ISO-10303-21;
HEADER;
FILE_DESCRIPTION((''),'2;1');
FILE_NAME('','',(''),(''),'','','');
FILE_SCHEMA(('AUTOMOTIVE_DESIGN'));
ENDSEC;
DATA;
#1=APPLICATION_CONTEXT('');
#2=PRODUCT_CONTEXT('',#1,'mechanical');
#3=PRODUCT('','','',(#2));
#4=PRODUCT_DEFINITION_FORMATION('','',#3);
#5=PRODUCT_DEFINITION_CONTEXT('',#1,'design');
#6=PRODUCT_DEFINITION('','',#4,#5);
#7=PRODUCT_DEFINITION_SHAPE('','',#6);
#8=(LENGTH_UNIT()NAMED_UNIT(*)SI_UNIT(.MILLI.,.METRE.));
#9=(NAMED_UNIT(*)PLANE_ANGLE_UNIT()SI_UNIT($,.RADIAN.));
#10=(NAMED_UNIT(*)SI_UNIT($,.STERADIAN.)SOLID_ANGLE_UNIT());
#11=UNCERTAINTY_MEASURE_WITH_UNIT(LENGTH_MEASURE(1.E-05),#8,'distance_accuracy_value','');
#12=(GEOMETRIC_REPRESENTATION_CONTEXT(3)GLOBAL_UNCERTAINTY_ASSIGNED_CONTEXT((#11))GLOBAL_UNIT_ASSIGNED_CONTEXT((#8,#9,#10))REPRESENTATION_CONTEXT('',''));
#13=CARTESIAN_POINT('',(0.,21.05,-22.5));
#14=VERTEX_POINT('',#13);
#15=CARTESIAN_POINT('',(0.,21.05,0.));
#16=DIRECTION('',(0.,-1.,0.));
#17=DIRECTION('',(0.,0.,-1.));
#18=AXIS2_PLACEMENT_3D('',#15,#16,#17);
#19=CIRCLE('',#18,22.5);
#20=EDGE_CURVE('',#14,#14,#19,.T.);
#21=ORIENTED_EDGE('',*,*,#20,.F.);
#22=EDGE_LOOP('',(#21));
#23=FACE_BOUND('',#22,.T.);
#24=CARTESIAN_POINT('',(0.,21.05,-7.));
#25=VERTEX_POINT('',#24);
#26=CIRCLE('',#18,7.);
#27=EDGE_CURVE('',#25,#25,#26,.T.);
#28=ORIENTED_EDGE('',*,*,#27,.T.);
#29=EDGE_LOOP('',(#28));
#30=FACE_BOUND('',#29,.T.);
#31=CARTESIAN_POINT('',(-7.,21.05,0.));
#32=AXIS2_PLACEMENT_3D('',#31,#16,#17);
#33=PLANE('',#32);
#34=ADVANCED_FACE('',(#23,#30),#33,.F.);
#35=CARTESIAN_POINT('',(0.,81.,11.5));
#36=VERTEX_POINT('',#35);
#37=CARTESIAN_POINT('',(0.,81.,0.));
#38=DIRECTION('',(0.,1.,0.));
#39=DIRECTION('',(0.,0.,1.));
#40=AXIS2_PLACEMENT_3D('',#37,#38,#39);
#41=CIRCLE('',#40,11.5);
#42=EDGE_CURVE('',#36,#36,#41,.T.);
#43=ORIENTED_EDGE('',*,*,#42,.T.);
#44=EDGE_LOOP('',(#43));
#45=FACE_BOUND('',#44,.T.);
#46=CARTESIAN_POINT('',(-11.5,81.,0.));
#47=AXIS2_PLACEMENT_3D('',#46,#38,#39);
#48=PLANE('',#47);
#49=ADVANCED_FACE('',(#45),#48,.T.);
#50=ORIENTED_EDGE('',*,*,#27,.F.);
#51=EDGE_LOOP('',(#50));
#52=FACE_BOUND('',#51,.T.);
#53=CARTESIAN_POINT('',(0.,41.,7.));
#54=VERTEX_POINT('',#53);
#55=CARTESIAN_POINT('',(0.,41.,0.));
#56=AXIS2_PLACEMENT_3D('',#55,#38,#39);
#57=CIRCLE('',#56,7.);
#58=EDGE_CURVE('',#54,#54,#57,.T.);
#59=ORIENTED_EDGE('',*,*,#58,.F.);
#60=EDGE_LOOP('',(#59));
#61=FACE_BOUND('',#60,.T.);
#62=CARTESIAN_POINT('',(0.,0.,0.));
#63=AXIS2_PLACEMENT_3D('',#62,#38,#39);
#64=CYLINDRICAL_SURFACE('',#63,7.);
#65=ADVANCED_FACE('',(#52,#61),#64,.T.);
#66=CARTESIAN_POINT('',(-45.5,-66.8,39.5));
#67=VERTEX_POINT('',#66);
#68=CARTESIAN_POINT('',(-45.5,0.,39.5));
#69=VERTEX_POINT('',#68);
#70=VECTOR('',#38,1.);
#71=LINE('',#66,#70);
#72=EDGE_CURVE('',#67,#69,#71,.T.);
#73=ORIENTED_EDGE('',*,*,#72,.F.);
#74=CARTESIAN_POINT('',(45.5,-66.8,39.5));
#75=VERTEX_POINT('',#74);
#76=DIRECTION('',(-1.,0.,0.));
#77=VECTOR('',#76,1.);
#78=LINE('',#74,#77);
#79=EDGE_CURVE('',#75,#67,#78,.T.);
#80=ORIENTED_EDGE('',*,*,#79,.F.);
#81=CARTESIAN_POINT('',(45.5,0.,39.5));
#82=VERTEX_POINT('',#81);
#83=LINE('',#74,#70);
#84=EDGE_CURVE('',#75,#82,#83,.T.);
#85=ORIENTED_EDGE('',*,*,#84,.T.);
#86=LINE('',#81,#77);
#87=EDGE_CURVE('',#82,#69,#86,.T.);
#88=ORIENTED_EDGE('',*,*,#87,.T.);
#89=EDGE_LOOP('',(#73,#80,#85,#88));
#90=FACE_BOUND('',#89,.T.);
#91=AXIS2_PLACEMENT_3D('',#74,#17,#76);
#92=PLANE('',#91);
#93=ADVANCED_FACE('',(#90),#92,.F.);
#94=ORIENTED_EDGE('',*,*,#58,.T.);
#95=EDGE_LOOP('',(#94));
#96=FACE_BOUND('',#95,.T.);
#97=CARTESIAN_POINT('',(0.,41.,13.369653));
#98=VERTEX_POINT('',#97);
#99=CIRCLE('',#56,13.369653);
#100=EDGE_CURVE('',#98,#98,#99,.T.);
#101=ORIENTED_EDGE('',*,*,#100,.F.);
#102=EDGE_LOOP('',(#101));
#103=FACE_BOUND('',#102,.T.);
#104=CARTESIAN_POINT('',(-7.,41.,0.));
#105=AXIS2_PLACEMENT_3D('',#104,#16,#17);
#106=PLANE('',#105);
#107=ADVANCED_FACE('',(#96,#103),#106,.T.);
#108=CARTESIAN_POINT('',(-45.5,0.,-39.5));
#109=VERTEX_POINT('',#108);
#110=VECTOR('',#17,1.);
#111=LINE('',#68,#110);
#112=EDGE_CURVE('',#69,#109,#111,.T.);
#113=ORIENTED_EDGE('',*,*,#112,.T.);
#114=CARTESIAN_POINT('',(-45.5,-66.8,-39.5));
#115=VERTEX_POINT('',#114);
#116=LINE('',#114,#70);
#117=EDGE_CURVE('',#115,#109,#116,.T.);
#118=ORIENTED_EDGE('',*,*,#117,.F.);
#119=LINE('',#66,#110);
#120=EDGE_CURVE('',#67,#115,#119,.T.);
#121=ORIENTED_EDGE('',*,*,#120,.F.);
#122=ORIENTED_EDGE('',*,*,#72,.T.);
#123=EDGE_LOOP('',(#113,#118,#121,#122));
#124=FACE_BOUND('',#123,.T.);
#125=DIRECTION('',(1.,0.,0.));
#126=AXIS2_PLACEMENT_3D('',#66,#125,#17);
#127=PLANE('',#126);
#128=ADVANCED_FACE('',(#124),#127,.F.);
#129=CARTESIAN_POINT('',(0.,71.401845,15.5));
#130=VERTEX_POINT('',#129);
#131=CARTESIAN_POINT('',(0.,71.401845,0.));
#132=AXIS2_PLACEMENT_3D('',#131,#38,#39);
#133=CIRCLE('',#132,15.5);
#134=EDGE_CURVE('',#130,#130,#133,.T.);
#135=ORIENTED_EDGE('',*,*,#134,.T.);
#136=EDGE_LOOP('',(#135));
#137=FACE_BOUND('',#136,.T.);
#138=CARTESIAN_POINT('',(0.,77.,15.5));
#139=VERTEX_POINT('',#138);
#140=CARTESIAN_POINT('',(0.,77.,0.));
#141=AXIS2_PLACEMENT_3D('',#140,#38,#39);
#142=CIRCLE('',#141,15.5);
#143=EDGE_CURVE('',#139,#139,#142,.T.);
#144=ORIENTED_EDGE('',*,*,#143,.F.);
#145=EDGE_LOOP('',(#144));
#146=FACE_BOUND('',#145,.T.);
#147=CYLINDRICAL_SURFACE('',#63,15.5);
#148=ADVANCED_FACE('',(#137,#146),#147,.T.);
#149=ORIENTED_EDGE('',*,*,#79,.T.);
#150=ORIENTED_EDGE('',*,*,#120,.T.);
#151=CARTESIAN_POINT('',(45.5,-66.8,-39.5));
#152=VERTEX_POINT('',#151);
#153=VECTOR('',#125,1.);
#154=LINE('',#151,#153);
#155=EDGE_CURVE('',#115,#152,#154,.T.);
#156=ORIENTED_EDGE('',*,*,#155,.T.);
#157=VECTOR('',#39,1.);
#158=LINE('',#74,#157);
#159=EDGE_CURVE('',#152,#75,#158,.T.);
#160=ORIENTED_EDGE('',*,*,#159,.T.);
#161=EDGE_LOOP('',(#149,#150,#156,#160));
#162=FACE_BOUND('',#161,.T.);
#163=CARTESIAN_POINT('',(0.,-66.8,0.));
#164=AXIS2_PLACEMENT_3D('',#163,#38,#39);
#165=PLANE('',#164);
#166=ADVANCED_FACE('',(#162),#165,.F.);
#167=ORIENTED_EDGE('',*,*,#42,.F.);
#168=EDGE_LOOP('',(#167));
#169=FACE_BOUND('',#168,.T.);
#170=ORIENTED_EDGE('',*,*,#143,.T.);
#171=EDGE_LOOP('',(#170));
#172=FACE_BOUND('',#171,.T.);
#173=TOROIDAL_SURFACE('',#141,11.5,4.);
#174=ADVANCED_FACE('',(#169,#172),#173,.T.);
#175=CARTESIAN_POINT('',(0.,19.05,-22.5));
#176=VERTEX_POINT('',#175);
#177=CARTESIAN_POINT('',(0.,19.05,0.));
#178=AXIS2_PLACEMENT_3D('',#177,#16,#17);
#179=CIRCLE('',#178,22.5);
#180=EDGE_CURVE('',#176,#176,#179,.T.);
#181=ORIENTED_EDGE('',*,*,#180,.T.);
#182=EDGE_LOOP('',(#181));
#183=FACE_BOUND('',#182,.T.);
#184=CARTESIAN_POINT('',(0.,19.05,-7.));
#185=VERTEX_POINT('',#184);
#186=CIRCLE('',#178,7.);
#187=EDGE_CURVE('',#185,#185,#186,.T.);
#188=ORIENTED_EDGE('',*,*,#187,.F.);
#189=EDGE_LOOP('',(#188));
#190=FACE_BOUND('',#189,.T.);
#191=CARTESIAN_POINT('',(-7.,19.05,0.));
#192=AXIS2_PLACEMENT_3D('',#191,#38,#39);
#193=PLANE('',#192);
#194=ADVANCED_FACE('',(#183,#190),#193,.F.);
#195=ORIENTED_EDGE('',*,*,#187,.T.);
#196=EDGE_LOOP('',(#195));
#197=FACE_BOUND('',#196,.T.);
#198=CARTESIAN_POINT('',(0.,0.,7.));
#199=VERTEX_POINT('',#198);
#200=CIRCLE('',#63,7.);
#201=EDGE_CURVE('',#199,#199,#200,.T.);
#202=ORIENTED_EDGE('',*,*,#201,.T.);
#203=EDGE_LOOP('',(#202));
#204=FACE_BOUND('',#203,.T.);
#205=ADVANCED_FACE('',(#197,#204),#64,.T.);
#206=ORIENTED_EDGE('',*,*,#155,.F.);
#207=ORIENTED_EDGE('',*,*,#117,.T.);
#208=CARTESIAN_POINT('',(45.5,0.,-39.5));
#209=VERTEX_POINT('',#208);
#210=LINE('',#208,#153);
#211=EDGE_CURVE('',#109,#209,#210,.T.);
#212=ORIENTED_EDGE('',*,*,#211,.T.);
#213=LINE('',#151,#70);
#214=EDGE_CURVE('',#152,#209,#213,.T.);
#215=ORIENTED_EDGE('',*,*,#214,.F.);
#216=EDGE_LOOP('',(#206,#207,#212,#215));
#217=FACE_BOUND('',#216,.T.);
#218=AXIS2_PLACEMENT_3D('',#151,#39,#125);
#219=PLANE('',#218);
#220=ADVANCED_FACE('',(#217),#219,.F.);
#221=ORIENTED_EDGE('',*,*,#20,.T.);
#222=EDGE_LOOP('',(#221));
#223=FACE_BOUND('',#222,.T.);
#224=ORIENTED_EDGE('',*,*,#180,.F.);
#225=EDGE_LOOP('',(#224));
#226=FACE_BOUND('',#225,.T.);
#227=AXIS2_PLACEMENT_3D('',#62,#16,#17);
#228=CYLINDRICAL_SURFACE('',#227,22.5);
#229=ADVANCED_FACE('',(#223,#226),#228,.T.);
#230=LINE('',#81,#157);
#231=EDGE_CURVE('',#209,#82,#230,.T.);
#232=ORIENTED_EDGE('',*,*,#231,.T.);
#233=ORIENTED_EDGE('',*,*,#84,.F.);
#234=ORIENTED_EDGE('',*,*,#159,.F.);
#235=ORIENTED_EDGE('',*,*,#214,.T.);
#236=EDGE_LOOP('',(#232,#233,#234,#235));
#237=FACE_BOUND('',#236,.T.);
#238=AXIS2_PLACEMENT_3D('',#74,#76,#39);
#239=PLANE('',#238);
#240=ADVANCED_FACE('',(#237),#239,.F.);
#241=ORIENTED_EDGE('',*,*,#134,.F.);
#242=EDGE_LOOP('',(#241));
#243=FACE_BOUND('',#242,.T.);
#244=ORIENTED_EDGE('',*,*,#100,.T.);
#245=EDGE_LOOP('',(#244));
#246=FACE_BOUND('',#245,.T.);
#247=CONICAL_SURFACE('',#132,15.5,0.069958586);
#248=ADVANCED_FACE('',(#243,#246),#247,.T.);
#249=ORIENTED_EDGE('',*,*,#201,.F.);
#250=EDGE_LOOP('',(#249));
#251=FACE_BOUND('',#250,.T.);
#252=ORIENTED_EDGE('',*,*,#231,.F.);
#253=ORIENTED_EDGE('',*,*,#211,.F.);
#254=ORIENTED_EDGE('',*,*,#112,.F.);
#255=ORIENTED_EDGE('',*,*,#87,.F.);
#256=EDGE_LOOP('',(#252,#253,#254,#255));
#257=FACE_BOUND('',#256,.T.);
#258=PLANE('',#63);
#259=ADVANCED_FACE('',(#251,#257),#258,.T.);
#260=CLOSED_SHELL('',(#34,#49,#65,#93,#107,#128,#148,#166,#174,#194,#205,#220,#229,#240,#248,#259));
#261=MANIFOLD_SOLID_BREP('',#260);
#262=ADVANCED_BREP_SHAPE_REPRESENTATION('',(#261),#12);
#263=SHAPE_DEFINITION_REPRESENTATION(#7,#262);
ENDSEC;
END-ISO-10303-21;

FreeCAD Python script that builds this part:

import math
import FreeCAD as App
import Part
import Sketcher
Q = App.Units.Quantity

doc = App.newDocument("Part")
body = doc.addObject("PartDesign::Body", "Body")

# Sketch on XY plane
sketch1 = doc.addObject("Sketcher::SketchObject", "Sketch")
body.addObject(sketch1)
sketch1.AttachmentSupport = (doc.XY_Plane, [""])
sketch1.MapMode = "FlatFace"
sketch1.addGeometry([
    Part.LineSegment(App.Vector(-7, 0, 0), App.Vector(0, 0, 0)),  # 0
    Part.LineSegment(App.Vector(0, 0, 0), App.Vector(0, 81, 0)),  # 1
    Part.LineSegment(App.Vector(0, 81, 0), App.Vector(-11.5, 81, 0)),  # 2
    Part.ArcOfCircle(Part.Circle(App.Vector(-11.5, 77, 0), App.Vector(0, 0, 1), 4), math.radians(90), math.radians(180)),  # 3
    Part.LineSegment(App.Vector(-15.5, 77, 0), App.Vector(-15.5, 71.4, 0)),  # 4
    Part.LineSegment(App.Vector(-15.5, 71.4, 0), App.Vector(-13.4, 41, 0)),  # 5
    Part.LineSegment(App.Vector(-13.4, 41, 0), App.Vector(-7, 41, 0)),  # 6
    Part.LineSegment(App.Vector(-7, 41, 0), App.Vector(-7, 0, 0)),  # 7
], False)
sketch1.addConstraint([
    Sketcher.Constraint("Coincident", 0, 2, 1, 1),
    Sketcher.Constraint("Coincident", 1, 2, 2, 1),
    Sketcher.Constraint("Tangent", 2, 2, 3, 1),
    Sketcher.Constraint("Tangent", 3, 2, 4, 1),
    Sketcher.Constraint("Coincident", 4, 2, 5, 1),
    Sketcher.Constraint("Coincident", 5, 2, 6, 1),
    Sketcher.Constraint("Coincident", 6, 2, 7, 1),
    Sketcher.Constraint("Coincident", 7, 2, 0, 1),
    Sketcher.Constraint("Horizontal", 0),
    Sketcher.Constraint("Vertical", 1),
    Sketcher.Constraint("Horizontal", 2),
    Sketcher.Constraint("Vertical", 4),
    Sketcher.Constraint("Horizontal", 6),
    Sketcher.Constraint("Vertical", 7),
    Sketcher.Constraint("Coincident", 0, 2, -1, 1),
    Sketcher.Constraint("Radius", 3, Q("4 mm")),
    Sketcher.Constraint("DistanceX", 0, 1, 0, 2, Q("7 mm")),
    Sketcher.Constraint("DistanceY", 1, 1, 1, 2, Q("81 mm")),
    Sketcher.Constraint("DistanceY", 7, 2, 7, 1, Q("41 mm")),
    Sketcher.Constraint("DistanceX", 2, 2, 2, 1, Q("11.5 mm")),
    Sketcher.Constraint("DistanceX", 6, 1, 6, 2, Q("6.369653 mm")),
    Sketcher.Constraint("DistanceY", 4, 2, 4, 1, Q("5.598155 mm")),
])
revolution = doc.addObject("PartDesign::Revolution", "Revolution")
body.addObject(revolution)
revolution.Profile = sketch1
revolution.ReferenceAxis = (sketch1, ["V_Axis"])
revolution.Angle = 360

# Sketch on XY plane
sketch2 = doc.addObject("Sketcher::SketchObject", "Sketch001")
body.addObject(sketch2)
sketch2.AttachmentSupport = (doc.XY_Plane, [""])
sketch2.MapMode = "FlatFace"
sketch2.addGeometry([
    Part.LineSegment(App.Vector(-22.5, 21.1, 0), App.Vector(-22.5, 19.1, 0)),
    Part.LineSegment(App.Vector(-22.5, 19.1, 0), App.Vector(-7, 19.1, 0)),
    Part.LineSegment(App.Vector(-7, 19.1, 0), App.Vector(-7, 21.1, 0)),
    Part.LineSegment(App.Vector(-7, 21.1, 0), App.Vector(-22.5, 21.1, 0)),
], False)
sketch2.addConstraint([
    Sketcher.Constraint("Coincident", 0, 2, 1, 1),
    Sketcher.Constraint("Coincident", 1, 2, 2, 1),
    Sketcher.Constraint("Coincident", 2, 2, 3, 1),
    Sketcher.Constraint("Coincident", 3, 2, 0, 1),
    Sketcher.Constraint("Vertical", 0),
    Sketcher.Constraint("Horizontal", 1),
    Sketcher.Constraint("Vertical", 2),
    Sketcher.Constraint("Horizontal", 3),
    Sketcher.Constraint("DistanceY", 0, 2, 0, 1, Q("2 mm")),
    Sketcher.Constraint("DistanceX", 1, 1, 1, 2, Q("15.5 mm")),
    Sketcher.Constraint("DistanceX", 1, 2, -1, 1, Q("7 mm")),
    Sketcher.Constraint("DistanceY", -1, 1, 0, 2, Q("19.05 mm")),
])
revolution2 = doc.addObject("PartDesign::Revolution", "Revolution001")
body.addObject(revolution2)
revolution2.Profile = sketch2
revolution2.ReferenceAxis = (sketch2, ["V_Axis"])
revolution2.Angle = 360

# Sketch on XZ plane
sketch3 = doc.addObject("Sketcher::SketchObject", "Sketch002")
body.addObject(sketch3)
sketch3.AttachmentSupport = (doc.XZ_Plane, [""])
sketch3.MapMode = "FlatFace"
sketch3.addGeometry([
    Part.LineSegment(App.Vector(-46, 40, 0), App.Vector(-46, -40, 0)),
    Part.LineSegment(App.Vector(-46, -40, 0), App.Vector(46, -40, 0)),
    Part.LineSegment(App.Vector(46, -40, 0), App.Vector(46, 40, 0)),
    Part.LineSegment(App.Vector(46, 40, 0), App.Vector(-46, 40, 0)),
], False)
sketch3.addConstraint([
    Sketcher.Constraint("Coincident", 0, 2, 1, 1),
    Sketcher.Constraint("Coincident", 1, 2, 2, 1),
    Sketcher.Constraint("Coincident", 2, 2, 3, 1),
    Sketcher.Constraint("Coincident", 3, 2, 0, 1),
    Sketcher.Constraint("Vertical", 0),
    Sketcher.Constraint("Horizontal", 1),
    Sketcher.Constraint("Vertical", 2),
    Sketcher.Constraint("Horizontal", 3),
    Sketcher.Constraint("Symmetric", 0, 2, 2, 2, -1, 1),
    Sketcher.Constraint("DistanceX", 1, 1, 1, 2, Q("91 mm")),
    Sketcher.Constraint("DistanceY", 0, 2, 0, 1, Q("79 mm")),
])
pad1 = doc.addObject("PartDesign::Pad", "Pad")
body.addObject(pad1)
pad1.Profile = sketch3
pad1.Length = 66.8

doc.recompute()
